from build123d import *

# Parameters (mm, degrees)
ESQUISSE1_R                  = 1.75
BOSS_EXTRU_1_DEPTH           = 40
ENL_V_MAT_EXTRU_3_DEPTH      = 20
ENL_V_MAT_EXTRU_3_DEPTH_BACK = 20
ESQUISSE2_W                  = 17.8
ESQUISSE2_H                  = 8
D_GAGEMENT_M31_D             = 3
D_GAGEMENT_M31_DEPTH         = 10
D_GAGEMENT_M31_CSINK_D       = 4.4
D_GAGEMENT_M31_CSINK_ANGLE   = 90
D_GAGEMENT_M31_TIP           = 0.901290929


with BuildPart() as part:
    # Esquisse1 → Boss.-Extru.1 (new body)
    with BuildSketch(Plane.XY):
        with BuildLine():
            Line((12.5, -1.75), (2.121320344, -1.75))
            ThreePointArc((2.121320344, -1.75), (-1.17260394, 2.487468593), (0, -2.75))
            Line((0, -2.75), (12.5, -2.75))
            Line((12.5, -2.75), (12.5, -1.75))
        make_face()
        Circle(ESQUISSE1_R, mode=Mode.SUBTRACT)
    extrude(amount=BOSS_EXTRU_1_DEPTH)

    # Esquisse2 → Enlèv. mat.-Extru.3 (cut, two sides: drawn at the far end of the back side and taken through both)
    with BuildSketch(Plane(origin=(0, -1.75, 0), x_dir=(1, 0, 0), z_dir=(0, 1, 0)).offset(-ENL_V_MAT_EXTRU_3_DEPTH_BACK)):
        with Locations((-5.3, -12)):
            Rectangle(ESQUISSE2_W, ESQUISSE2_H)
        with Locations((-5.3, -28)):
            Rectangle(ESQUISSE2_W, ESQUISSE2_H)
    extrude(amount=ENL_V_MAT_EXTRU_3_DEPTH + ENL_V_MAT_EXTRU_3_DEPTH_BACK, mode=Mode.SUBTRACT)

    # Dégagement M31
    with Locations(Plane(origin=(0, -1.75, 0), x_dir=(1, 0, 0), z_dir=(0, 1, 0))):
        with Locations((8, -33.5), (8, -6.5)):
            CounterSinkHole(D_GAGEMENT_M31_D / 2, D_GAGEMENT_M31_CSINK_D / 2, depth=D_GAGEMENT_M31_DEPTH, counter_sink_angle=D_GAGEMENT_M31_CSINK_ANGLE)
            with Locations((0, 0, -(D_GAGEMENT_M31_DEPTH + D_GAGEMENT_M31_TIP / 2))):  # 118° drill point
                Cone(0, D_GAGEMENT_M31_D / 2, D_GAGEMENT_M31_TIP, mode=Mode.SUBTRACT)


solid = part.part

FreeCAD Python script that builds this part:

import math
import FreeCAD as App
import Part
import Sketcher
from FreeCAD import Vector

doc = App.newDocument("Part")
params = doc.addObject("Spreadsheet::Sheet", "Params")
for row, (alias, value) in enumerate([
    ("sketch1_diameter", "3.5 mm"),
    ("sketch1_height", "1 mm"),
    ("sketch1_radius", "2.75 mm"),
    ("sketch1_width", "12.5 mm"),
    ("pad1_length", "40 mm"),
    ("sketch2_height", "8 mm"),
    ("sketch2_width", "17.8 mm"),
    ("sketch3_diameter", "3 mm"),
    ("hole_diameter", "3 mm"),
    ("hole_depth", "10 mm"),
    ("hole_csink_diameter", "4.4 mm"),
], start=1):
    params.set(f"A{row}", alias)
    params.set(f"B{row}", "=" + value)
    params.setAlias(f"B{row}", alias)

body = doc.addObject("PartDesign::Body", "Body")

sketch1 = body.newObject("Sketcher::SketchObject", "Sketch")
sketch1.AttachmentSupport = (doc.getObject("XY_Plane"), [""])
sketch1.MapMode = "FlatFace"
sketch1.addGeometry(Part.LineSegment(Vector(12.5, -1.8, 0), Vector(2.1, -1.8, 0)), False)
sketch1.addGeometry(Part.ArcOfCircle(Part.Circle(Vector(0, 0, 0), Vector(0, 0, 1), 2.8), math.radians(-40), math.radians(270)), False)
sketch1.addGeometry(Part.LineSegment(Vector(0, -2.8, 0), Vector(12.5, -2.8, 0)), False)
sketch1.addGeometry(Part.LineSegment(Vector(12.5, -2.8, 0), Vector(12.5, -1.8, 0)), False)
sketch1.addGeometry(Part.Circle(Vector(0, 0, 0), Vector(0, 0, 1), 1.8), False)
sketch1.addConstraint(Sketcher.Constraint("Coincident", 0, 2, 1, 1))
sketch1.addConstraint(Sketcher.Constraint("Tangent", 1, 2, 2, 1))
sketch1.addConstraint(Sketcher.Constraint("Coincident", 2, 2, 3, 1))
sketch1.addConstraint(Sketcher.Constraint("Coincident", 3, 2, 0, 1))
sketch1.addConstraint(Sketcher.Constraint("Horizontal", 0))
sketch1.addConstraint(Sketcher.Constraint("Horizontal", 2))
sketch1.addConstraint(Sketcher.Constraint("Vertical", 3))
sketch1.addConstraint(Sketcher.Constraint("Coincident", 1, 3, -1, 1))
sketch1.addConstraint(Sketcher.Constraint("Coincident", 4, 3, -1, 1))
sketch1.addConstraint(Sketcher.Constraint("Diameter", 4, 3.5))
sketch1.addConstraint(Sketcher.Constraint("DistanceY", 3, 1, 3, 2, 1.0))
sketch1.addConstraint(Sketcher.Constraint("Radius", 1, 2.75))
sketch1.addConstraint(Sketcher.Constraint("DistanceX", 2, 1, 2, 2, 12.5))
sketch1.setExpression("Constraints[9]", "Params.sketch1_diameter")
sketch1.setExpression("Constraints[10]", "Params.sketch1_height")
sketch1.setExpression("Constraints[11]", "Params.sketch1_radius")
sketch1.setExpression("Constraints[12]", "Params.sketch1_width")
pad1 = body.newObject("PartDesign::Pad", "Pad")
pad1.Profile = sketch1
pad1.setExpression("Length", "Params.pad1_length")

sketch2 = body.newObject("Sketcher::SketchObject", "Sketch001")
sketch2.AttachmentSupport = (doc.getObject("XZ_Plane"), [""])
sketch2.MapMode = "FlatFace"
sketch2.AttachmentOffset = App.Placement(Vector(0, 0, 1.75), App.Rotation())
sketch2.addGeometry(Part.LineSegment(Vector(-14, 8, 0), Vector(-14, 16, 0)), False)
sketch2.addGeometry(Part.LineSegment(Vector(-14, 16, 0), Vector(4, 16, 0)), False)
sketch2.addGeometry(Part.LineSegment(Vector(4, 16, 0), Vector(4, 8, 0)), False)
sketch2.addGeometry(Part.LineSegment(Vector(4, 8, 0), Vector(-14, 8, 0)), False)
sketch2.addGeometry(Part.LineSegment(Vector(-14, 24, 0), Vector(-14, 32, 0)), False)
sketch2.addGeometry(Part.LineSegment(Vector(-14, 32, 0), Vector(4, 32, 0)), False)
sketch2.addGeometry(Part.LineSegment(Vector(4, 32, 0), Vector(4, 24, 0)), False)
sketch2.addGeometry(Part.LineSegment(Vector(4, 24, 0), Vector(-14, 24, 0)), False)
sketch2.addConstraint(Sketcher.Constraint("Coincident", 0, 2, 1, 1))
sketch2.addConstraint(Sketcher.Constraint("Coincident", 1, 2, 2, 1))
sketch2.addConstraint(Sketcher.Constraint("Coincident", 2, 2, 3, 1))
sketch2.addConstraint(Sketcher.Constraint("Coincident", 3, 2, 0, 1))
sketch2.addConstraint(Sketcher.Constraint("Coincident", 4, 2, 5, 1))
sketch2.addConstraint(Sketcher.Constraint("Coincident", 5, 2, 6, 1))
sketch2.addConstraint(Sketcher.Constraint("Coincident", 6, 2, 7, 1))
sketch2.addConstraint(Sketcher.Constraint("Coincident", 7, 2, 4, 1))
sketch2.addConstraint(Sketcher.Constraint("Vertical", 0))
sketch2.addConstraint(Sketcher.Constraint("Horizontal", 1))
sketch2.addConstraint(Sketcher.Constraint("Vertical", 2))
sketch2.addConstraint(Sketcher.Constraint("Horizontal", 3))
sketch2.addConstraint(Sketcher.Constraint("Vertical", 4))
sketch2.addConstraint(Sketcher.Constraint("Horizontal", 5))
sketch2.addConstraint(Sketcher.Constraint("Vertical", 6))
sketch2.addConstraint(Sketcher.Constraint("Horizontal", 7))
sketch2.addConstraint(Sketcher.Constraint("Vertical", 3, 2, 4, 2))
sketch2.addConstraint(Sketcher.Constraint("Vertical", 2, 2, 5, 2))
sketch2.addConstraint(Sketcher.Constraint("Equal", 2, 4))
sketch2.addConstraint(Sketcher.Constraint("DistanceY", 0, 1, 0, 2, 8.0))
sketch2.addConstraint(Sketcher.Constraint("DistanceX", 1, 1, 1, 2, 17.8))
sketch2.addConstraint(Sketcher.Constraint("DistanceY", -1, 1, 0, 2, 16.0))
sketch2.addConstraint(Sketcher.Constraint("DistanceY", -1, 1, 4, 2, 32.0))
sketch2.addConstraint(Sketcher.Constraint("DistanceX", 0, 2, -1, 1, 14.2))
sketch2.setExpression("Constraints[19]", "Params.sketch2_height")
sketch2.setExpression("Constraints[20]", "Params.sketch2_width")
pocket1 = body.newObject("PartDesign::Pocket", "Pocket")
pocket1.Profile = sketch2
pocket1.Type = "ThroughAll"
pocket1.Midplane = True

sketch3 = body.newObject("Sketcher::SketchObject", "Sketch002")
sketch3.AttachmentSupport = (doc.getObject("XZ_Plane"), [""])
sketch3.MapMode = "FlatFace"
sketch3.AttachmentOffset = App.Placement(Vector(0, 0, 1.75), App.Rotation())
sketch3.addGeometry(Part.Circle(Vector(8, 33.5, 0), Vector(0, 0, 1), 1.5), False)
sketch3.addGeometry(Part.Circle(Vector(8, 6.5, 0), Vector(0, 0, 1), 1.5), False)
sketch3.addConstraint(Sketcher.Constraint("Equal", 0, 1))
sketch3.addConstraint(Sketcher.Constraint("Vertical", 0, 3, 1, 3))
sketch3.addConstraint(Sketcher.Constraint("Diameter", 0, 3.0))
sketch3.addConstraint(Sketcher.Constraint("DistanceX", -1, 1, 0, 3, 8.0))
sketch3.addConstraint(Sketcher.Constraint("DistanceY", 1, 3, 0, 3, 27.0))
sketch3.addConstraint(Sketcher.Constraint("DistanceY", -1, 1, 0, 3, 33.5))
sketch3.setExpression("Constraints[2]", "Params.sketch3_diameter")
doc.recompute()
hole = body.newObject("PartDesign::Hole", "Hole")
hole.Profile = sketch3
hole.ThreadType = "None"
hole.setExpression("Diameter", "Params.hole_diameter")
hole.DepthType = "Dimension"
hole.setExpression("Depth", "Params.hole_depth")
hole.DrillPoint = "Angled"
hole.DrillPointAngle = 118
hole.HoleCutType = "Countersink"
hole.setExpression("HoleCutDiameter", "Params.hole_csink_diameter")
hole.HoleCutCountersinkAngle = 90
hole.Reversed = True

doc.recompute()
